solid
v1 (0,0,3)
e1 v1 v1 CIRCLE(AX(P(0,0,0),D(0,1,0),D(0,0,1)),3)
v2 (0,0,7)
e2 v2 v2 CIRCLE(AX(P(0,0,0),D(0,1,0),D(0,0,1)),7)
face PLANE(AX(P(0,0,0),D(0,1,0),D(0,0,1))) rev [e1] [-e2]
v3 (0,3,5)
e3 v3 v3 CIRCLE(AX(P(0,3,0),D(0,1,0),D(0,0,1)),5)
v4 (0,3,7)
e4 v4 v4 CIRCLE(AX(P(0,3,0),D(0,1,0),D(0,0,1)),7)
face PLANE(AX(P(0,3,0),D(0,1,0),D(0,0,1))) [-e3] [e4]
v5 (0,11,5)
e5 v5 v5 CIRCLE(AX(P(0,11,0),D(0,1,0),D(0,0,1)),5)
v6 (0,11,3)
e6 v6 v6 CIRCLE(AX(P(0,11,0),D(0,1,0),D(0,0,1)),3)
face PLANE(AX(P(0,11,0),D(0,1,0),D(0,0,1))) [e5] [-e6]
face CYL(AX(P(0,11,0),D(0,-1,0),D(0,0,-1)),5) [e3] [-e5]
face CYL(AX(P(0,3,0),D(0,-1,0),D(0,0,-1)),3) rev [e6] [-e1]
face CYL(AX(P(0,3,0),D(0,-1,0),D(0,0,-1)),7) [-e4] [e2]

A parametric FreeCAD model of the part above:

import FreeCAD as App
import Part
import Sketcher

V = App.Vector

doc = App.newDocument("Part")
params = doc.addObject("Spreadsheet::Sheet", "Params")
for row, (alias, value) in enumerate([
    ("sketch1_diameter", "14 mm"),
    ("sketch1_diameter2", "6 mm"),
    ("pad1_length", "3 mm"),
    ("sketch2_diameter", "10 mm"),
    ("sketch2_diameter2", "6 mm"),
    ("pad2_length", "8 mm"),
], start=1):
    params.set(f"A{row}", alias)
    params.set(f"B{row}", "=" + value)
    params.setAlias(f"B{row}", alias)

body = doc.addObject("PartDesign::Body", "Body")

sketch1 = body.newObject("Sketcher::SketchObject", "Sketch")
sketch1.AttachmentSupport = (doc.getObject("XZ_Plane"), [""])
sketch1.MapMode = "FlatFace"
sketch1.addGeometry(Part.Circle(V(0, 0, 0), V(0, 0, 1), 7), False)
sketch1.addGeometry(Part.Circle(V(0, 0, 0), V(0, 0, 1), 3), False)
sketch1.addConstraint(Sketcher.Constraint("Coincident", 0, 3, -1, 1))
sketch1.addConstraint(Sketcher.Constraint("Coincident", 1, 3, -1, 1))
sketch1.addConstraint(Sketcher.Constraint("Diameter", 0, 14.0))
sketch1.addConstraint(Sketcher.Constraint("Diameter", 1, 6.0))
sketch1.setExpression("Constraints[2]", "Params.sketch1_diameter")
sketch1.setExpression("Constraints[3]", "Params.sketch1_diameter2")
pad1 = body.newObject("PartDesign::Pad", "Pad")
pad1.Profile = sketch1
pad1.setExpression("Length", "Params.pad1_length")
pad1.Reversed = True

sketch2 = body.newObject("Sketcher::SketchObject", "Sketch001")
sketch2.AttachmentSupport = (doc.getObject("XZ_Plane"), [""])
sketch2.MapMode = "FlatFace"
sketch2.AttachmentOffset = App.Placement(V(0, 0, -3), App.Rotation())
sketch2.addGeometry(Part.Circle(V(0, 0, 0), V(0, 0, 1), 5), False)
sketch2.addGeometry(Part.Circle(V(0, 0, 0), V(0, 0, 1), 3), False)
sketch2.addConstraint(Sketcher.Constraint("Coincident", 0, 3, -1, 1))
sketch2.addConstraint(Sketcher.Constraint("Coincident", 1, 3, -1, 1))
sketch2.addConstraint(Sketcher.Constraint("Diameter", 0, 10.0))
sketch2.addConstraint(Sketcher.Constraint("Diameter", 1, 6.0))
sketch2.setExpression("Constraints[2]", "Params.sketch2_diameter")
sketch2.setExpression("Constraints[3]", "Params.sketch2_diameter2")
pad2 = body.newObject("PartDesign::Pad", "Pad001")
pad2.Profile = sketch2
pad2.setExpression("Length", "Params.pad2_length")
pad2.Reversed = True

doc.recompute()
